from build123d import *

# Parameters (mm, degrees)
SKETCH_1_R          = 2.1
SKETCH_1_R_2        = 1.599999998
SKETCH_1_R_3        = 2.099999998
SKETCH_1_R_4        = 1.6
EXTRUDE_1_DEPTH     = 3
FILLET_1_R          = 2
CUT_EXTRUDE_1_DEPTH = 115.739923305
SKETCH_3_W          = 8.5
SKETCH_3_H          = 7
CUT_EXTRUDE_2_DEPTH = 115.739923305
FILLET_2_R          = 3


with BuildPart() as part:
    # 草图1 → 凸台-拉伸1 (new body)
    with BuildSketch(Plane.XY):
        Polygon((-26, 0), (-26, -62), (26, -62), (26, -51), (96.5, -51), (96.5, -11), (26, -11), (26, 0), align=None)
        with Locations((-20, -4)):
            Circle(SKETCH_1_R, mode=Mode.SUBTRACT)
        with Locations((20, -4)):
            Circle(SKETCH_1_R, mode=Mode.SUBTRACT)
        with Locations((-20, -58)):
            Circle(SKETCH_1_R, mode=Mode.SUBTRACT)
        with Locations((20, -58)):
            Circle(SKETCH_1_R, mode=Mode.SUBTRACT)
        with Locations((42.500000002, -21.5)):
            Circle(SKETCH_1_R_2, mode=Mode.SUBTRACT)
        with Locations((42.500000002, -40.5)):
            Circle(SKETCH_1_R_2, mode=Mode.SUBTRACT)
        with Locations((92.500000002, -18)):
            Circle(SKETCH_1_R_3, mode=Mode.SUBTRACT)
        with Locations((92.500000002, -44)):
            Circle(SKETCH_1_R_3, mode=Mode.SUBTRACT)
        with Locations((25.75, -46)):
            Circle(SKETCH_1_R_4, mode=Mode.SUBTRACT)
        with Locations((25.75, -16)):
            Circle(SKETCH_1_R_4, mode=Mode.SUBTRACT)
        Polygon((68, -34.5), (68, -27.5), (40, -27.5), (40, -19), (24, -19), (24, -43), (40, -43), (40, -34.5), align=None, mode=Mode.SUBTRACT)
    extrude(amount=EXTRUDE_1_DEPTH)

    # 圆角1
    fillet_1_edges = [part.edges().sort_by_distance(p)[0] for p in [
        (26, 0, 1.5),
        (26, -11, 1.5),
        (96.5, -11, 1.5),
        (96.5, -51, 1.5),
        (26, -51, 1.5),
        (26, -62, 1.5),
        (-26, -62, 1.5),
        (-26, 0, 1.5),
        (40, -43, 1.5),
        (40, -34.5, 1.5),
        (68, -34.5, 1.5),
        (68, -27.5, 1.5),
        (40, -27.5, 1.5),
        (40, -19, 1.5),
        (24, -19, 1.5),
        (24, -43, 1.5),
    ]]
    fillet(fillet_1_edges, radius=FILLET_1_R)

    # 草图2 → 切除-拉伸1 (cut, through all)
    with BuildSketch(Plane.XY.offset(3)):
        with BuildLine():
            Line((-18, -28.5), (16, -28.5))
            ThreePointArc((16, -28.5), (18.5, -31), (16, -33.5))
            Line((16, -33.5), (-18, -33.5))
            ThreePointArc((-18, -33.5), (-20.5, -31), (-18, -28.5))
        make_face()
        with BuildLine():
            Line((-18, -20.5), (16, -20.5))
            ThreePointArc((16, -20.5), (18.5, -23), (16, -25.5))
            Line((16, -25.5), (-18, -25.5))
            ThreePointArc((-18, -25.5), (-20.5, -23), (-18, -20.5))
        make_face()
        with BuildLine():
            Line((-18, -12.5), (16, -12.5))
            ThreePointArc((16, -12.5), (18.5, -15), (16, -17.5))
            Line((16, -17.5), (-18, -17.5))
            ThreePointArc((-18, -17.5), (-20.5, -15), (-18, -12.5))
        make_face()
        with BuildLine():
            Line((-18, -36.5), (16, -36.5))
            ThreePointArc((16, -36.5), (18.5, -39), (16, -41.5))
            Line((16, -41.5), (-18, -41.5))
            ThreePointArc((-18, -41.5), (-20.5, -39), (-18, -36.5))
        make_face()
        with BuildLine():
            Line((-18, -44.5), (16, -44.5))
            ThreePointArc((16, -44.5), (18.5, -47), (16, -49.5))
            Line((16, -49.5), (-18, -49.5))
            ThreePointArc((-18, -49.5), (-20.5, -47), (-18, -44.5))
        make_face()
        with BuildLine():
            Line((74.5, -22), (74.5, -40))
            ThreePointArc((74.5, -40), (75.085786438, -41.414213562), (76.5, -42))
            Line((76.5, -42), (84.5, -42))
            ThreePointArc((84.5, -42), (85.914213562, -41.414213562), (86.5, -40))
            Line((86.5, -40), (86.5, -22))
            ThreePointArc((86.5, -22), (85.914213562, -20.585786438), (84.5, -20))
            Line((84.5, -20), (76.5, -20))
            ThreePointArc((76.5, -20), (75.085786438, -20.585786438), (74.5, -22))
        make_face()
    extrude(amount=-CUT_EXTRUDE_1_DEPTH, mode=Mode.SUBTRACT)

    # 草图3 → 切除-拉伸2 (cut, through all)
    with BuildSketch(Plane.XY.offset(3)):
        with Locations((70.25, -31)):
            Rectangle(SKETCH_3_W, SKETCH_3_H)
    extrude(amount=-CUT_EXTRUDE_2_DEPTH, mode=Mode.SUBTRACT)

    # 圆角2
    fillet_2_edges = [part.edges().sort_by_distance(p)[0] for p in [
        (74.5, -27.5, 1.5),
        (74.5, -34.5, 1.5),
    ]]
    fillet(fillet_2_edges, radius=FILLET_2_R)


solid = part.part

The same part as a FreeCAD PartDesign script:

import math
import FreeCAD as App
import Part
import Sketcher
from FreeCAD import Vector
Q = App.Units.Quantity


def edges_at(feature, points):
    """Names of the edges that pass closest to the given points."""
    edges = feature.Shape.Edges
    near = lambda p: min(range(len(edges)), key=lambda i: edges[i].distToShape(Part.Vertex(*p))[0])
    return sorted({f"Edge{near(p) + 1}" for p in points})

doc = App.newDocument("Part")
body = doc.addObject("PartDesign::Body", "Body")

# Sketch on XY plane
sketch1 = body.newObject("Sketcher::SketchObject", "Sketch")
sketch1.AttachmentSupport = (doc.getObject("XY_Plane"), [""])
sketch1.MapMode = "FlatFace"
sketch1.addGeometry([
    Part.LineSegment(Vector(-26, 0, 0), Vector(-26, -62, 0)),  # 0
    Part.LineSegment(Vector(-26, -62, 0), Vector(26, -62, 0)),  # 1
    Part.LineSegment(Vector(26, -62, 0), Vector(26, -51, 0)),  # 2
    Part.LineSegment(Vector(26, -51, 0), Vector(96.5, -51, 0)),  # 3
    Part.LineSegment(Vector(96.5, -51, 0), Vector(96.5, -11, 0)),  # 4
    Part.LineSegment(Vector(96.5, -11, 0), Vector(26, -11, 0)),  # 5
    Part.LineSegment(Vector(26, -11, 0), Vector(26, 0, 0)),  # 6
    Part.LineSegment(Vector(26, 0, 0), Vector(-26, 0, 0)),  # 7
    Part.Circle(Vector(-20, -58, 0), Vector(0, 0, 1), 2.1),  # 8
    Part.Circle(Vector(20, -58, 0), Vector(0, 0, 1), 2.1),  # 9
    Part.Circle(Vector(25.8, -46, 0), Vector(0, 0, 1), 1.6),  # 10
    Part.Circle(Vector(42.5, -40.5, 0), Vector(0, 0, 1), 1.6),  # 11
    Part.LineSegment(Vector(68, -27.5, 0), Vector(68, -34.5, 0)),  # 12
    Part.LineSegment(Vector(68, -34.5, 0), Vector(40, -34.5, 0)),  # 13
    Part.LineSegment(Vector(40, -34.5, 0), Vector(40, -43, 0)),  # 14
    Part.LineSegment(Vector(40, -43, 0), Vector(24, -43, 0)),  # 15
    Part.LineSegment(Vector(24, -43, 0), Vector(24, -19, 0)),  # 16
    Part.LineSegment(Vector(24, -19, 0), Vector(40, -19, 0)),  # 17
    Part.LineSegment(Vector(40, -19, 0), Vector(40, -27.5, 0)),  # 18
    Part.LineSegment(Vector(40, -27.5, 0), Vector(68, -27.5, 0)),  # 19
    Part.Circle(Vector(92.5, -44, 0), Vector(0, 0, 1), 2.1),  # 20
    Part.Circle(Vector(-20, -4, 0), Vector(0, 0, 1), 2.1),  # 21
    Part.Circle(Vector(25.8, -16, 0), Vector(0, 0, 1), 1.6),  # 22
    Part.Circle(Vector(20, -4, 0), Vector(0, 0, 1), 2.1),  # 23
    Part.Circle(Vector(42.5, -21.5, 0), Vector(0, 0, 1), 1.6),  # 24
    Part.Circle(Vector(92.5, -18, 0), Vector(0, 0, 1), 2.1),  # 25
], False)
sketch1.addConstraint([
    Sketcher.Constraint("Coincident", 0, 2, 1, 1),
    Sketcher.Constraint("Coincident", 1, 2, 2, 1),
    Sketcher.Constraint("Coincident", 2, 2, 3, 1),
    Sketcher.Constraint("Coincident", 3, 2, 4, 1),
    Sketcher.Constraint("Coincident", 4, 2, 5, 1),
    Sketcher.Constraint("Coincident", 5, 2, 6, 1),
    Sketcher.Constraint("Coincident", 6, 2, 7, 1),
    Sketcher.Constraint("Coincident", 7, 2, 0, 1),
    Sketcher.Constraint("Coincident", 12, 2, 13, 1),
    Sketcher.Constraint("Coincident", 13, 2, 14, 1),
    Sketcher.Constraint("Coincident", 14, 2, 15, 1),
    Sketcher.Constraint("Coincident", 15, 2, 16, 1),
    Sketcher.Constraint("Coincident", 16, 2, 17, 1),
    Sketcher.Constraint("Coincident", 17, 2, 18, 1),
    Sketcher.Constraint("Coincident", 18, 2, 19, 1),
    Sketcher.Constraint("Coincident", 19, 2, 12, 1),
    Sketcher.Constraint("Vertical", 0),
    Sketcher.Constraint("Horizontal", 1),
    Sketcher.Constraint("Vertical", 2),
    Sketcher.Constraint("Horizontal", 3),
    Sketcher.Constraint("Vertical", 4),
    Sketcher.Constraint("Horizontal", 5),
    Sketcher.Constraint("Vertical", 6),
    Sketcher.Constraint("Horizontal", 7),
    Sketcher.Constraint("Vertical", 12),
    Sketcher.Constraint("Horizontal", 13),
    Sketcher.Constraint("Vertical", 14),
    Sketcher.Constraint("Horizontal", 15),
    Sketcher.Constraint("Vertical", 16),
    Sketcher.Constraint("Horizontal", 17),
    Sketcher.Constraint("Vertical", 18),
    Sketcher.Constraint("Horizontal", 19),
    Sketcher.Constraint("Equal", 8, 9),
    Sketcher.Constraint("Equal", 10, 11),
    Sketcher.Constraint("Equal", 9, 20),
    Sketcher.Constraint("Equal", 20, 21),
    Sketcher.Constraint("Equal", 11, 22),
    Sketcher.Constraint("Equal", 21, 23),
    Sketcher.Constraint("Equal", 22, 24),
    Sketcher.Constraint("Equal", 23, 25),
    Sketcher.Constraint("Symmetric", 6, 2, 7, 2, -1, 1),
    Sketcher.Constraint("Symmetric", 8, 3, 9, 3, -2),
    Sketcher.Constraint("Symmetric", 21, 3, 23, 3, -2),
    Sketcher.Constraint("Vertical", 8, 3, 21, 3),
    Sketcher.Constraint("Vertical", 10, 3, 22, 3),
    Sketcher.Constraint("Vertical", 11, 3, 24, 3),
    Sketcher.Constraint("Vertical", 20, 3, 25, 3),
    Sketcher.Constraint("Vertical", 2, 2, 5, 2),
    Sketcher.Constraint("Vertical", 14, 2, 17, 2),
    Sketcher.Constraint("Equal", 2, 6),
    Sketcher.Constraint("Equal", 14, 18),
    Sketcher.Constraint("Diameter", 8, Q("4.2 mm")),
    Sketcher.Constraint("Diameter", 10, Q("3.2 mm")),
    Sketcher.Constraint("DistanceX", 1, 1, 1, 2, Q("52 mm")),
    Sketcher.Constraint("DistanceX", 13, 2, 13, 1, Q("28 mm")),
    Sketcher.Constraint("DistanceX", 15, 2, 15, 1, Q("16 mm")),
    Sketcher.Constraint("DistanceY", 0, 2, 0, 1, Q("62 mm")),
    Sketcher.Constraint("DistanceY", 2, 1, 2, 2, Q("11 mm")),
    Sketcher.Constraint("DistanceY", 12, 2, 12, 1, Q("7 mm")),
    Sketcher.Constraint("DistanceY", 16, 1, 16, 2, Q("24 mm")),
    Sketcher.Constraint("DistanceX", 3, 1, 3, 2, Q("70.5 mm")),
    Sketcher.Constraint("DistanceX", 8, 3, -1, 1, Q("20 mm")),
    Sketcher.Constraint("DistanceY", 8, 3, -1, 1, Q("58 mm")),
    Sketcher.Constraint("DistanceY", 10, 3, -1, 1, Q("46 mm")),
    Sketcher.Constraint("DistanceY", 20, 3, -1, 1, Q("44 mm")),
    Sketcher.Constraint("DistanceY", 21, 3, -1, 1, Q("4 mm")),
    Sketcher.Constraint("DistanceY", 22, 3, -1, 1, Q("16 mm")),
    Sketcher.Constraint("DistanceY", 25, 3, -1, 1, Q("18 mm")),
    Sketcher.Constraint("DistanceX", -1, 1, 12, 2, Q("68 mm")),
    Sketcher.Constraint("DistanceY", 14, 2, -1, 1, Q("43 mm")),
    Sketcher.Constraint("DistanceX", 11, 3, 20, 3, Q("50 mm")),
    Sketcher.Constraint("DistanceY", 11, 3, 24, 3, Q("19 mm")),
    Sketcher.Constraint("DistanceX", 20, 3, 3, 2, Q("4 mm")),
    Sketcher.Constraint("DistanceY", 11, 3, 12, 2, Q("6 mm")),
    Sketcher.Constraint("DistanceX", -1, 1, 10, 3, Q("25.75 mm")),
])
pad1 = body.newObject("PartDesign::Pad", "Pad")
pad1.Profile = sketch1
pad1.Length = 3
doc.recompute()

fillet = body.newObject("PartDesign::Fillet", "Fillet")
fillet.Base = (pad1, edges_at(pad1, [
    (26, 0, 1.5),
    (26, -11, 1.5),
    (96.5, -11, 1.5),
    (96.5, -51, 1.5),
    (26, -51, 1.5),
    (26, -62, 1.5),
    (-26, -62, 1.5),
    (-26, 0, 1.5),
    (40, -43, 1.5),
    (40, -34.5, 1.5),
    (68, -34.5, 1.5),
    (68, -27.5, 1.5),
    (40, -27.5, 1.5),
    (40, -19, 1.5),
    (24, -19, 1.5),
    (24, -43, 1.5),
]))
fillet.Radius = 2

# Sketch on XY plane
sketch2 = body.newObject("Sketcher::SketchObject", "Sketch001")
sketch2.AttachmentSupport = (doc.getObject("XY_Plane"), [""])
sketch2.MapMode = "FlatFace"
sketch2.AttachmentOffset = App.Placement(Vector(0, 0, 3), App.Rotation())
sketch2.addGeometry([
    Part.LineSegment(Vector(16, -28.5, 0), Vector(-18, -28.5, 0)),  # 0
    Part.ArcOfCircle(Part.Circle(Vector(-18, -31, 0), Vector(0, 0, 1), 2.5), math.radians(90), math.radians(270)),  # 1
    Part.LineSegment(Vector(-18, -33.5, 0), Vector(16, -33.5, 0)),  # 2
    Part.ArcOfCircle(Part.Circle(Vector(16, -31, 0), Vector(0, 0, 1), 2.5), math.radians(-90), math.radians(90)),  # 3
    Part.LineSegment(Vector(16, -20.5, 0), Vector(-18, -20.5, 0)),  # 4
    Part.ArcOfCircle(Part.Circle(Vector(-18, -23, 0), Vector(0, 0, 1), 2.5), math.radians(90), math.radians(270)),  # 5
    Part.LineSegment(Vector(-18, -25.5, 0), Vector(16, -25.5, 0)),  # 6
    Part.ArcOfCircle(Part.Circle(Vector(16, -23, 0), Vector(0, 0, 1), 2.5), math.radians(-90), math.radians(90)),  # 7
    Part.LineSegment(Vector(16, -12.5, 0), Vector(-18, -12.5, 0)),  # 8
    Part.ArcOfCircle(Part.Circle(Vector(-18, -15, 0), Vector(0, 0, 1), 2.5), math.radians(90), math.radians(270)),  # 9
    Part.LineSegment(Vector(-18, -17.5, 0), Vector(16, -17.5, 0)),  # 10
    Part.ArcOfCircle(Part.Circle(Vector(16, -15, 0), Vector(0, 0, 1), 2.5), math.radians(-90), math.radians(90)),  # 11
    Part.LineSegment(Vector(16, -36.5, 0), Vector(-18, -36.5, 0)),  # 12
    Part.ArcOfCircle(Part.Circle(Vector(-18, -39, 0), Vector(0, 0, 1), 2.5), math.radians(90), math.radians(270)),  # 13
    Part.LineSegment(Vector(-18, -41.5, 0), Vector(16, -41.5, 0)),  # 14
    Part.ArcOfCircle(Part.Circle(Vector(16, -39, 0), Vector(0, 0, 1), 2.5), math.radians(-90), math.radians(90)),  # 15
    Part.LineSegment(Vector(16, -44.5, 0), Vector(-18, -44.5, 0)),  # 16
    Part.ArcOfCircle(Part.Circle(Vector(-18, -47, 0), Vector(0, 0, 1), 2.5), math.radians(90), math.radians(270)),  # 17
    Part.LineSegment(Vector(-18, -49.5, 0), Vector(16, -49.5, 0)),  # 18
    Part.ArcOfCircle(Part.Circle(Vector(16, -47, 0), Vector(0, 0, 1), 2.5), math.radians(-90), math.radians(90)),  # 19
    Part.LineSegment(Vector(74.5, -22, 0), Vector(74.5, -40, 0)),  # 20
    Part.ArcOfCircle(Part.Circle(Vector(76.5, -40, 0), Vector(0, 0, 1), 2), math.radians(-180), math.radians(-90)),  # 21
    Part.LineSegment(Vector(76.5, -42, 0), Vector(84.5, -42, 0)),  # 22
    Part.ArcOfCircle(Part.Circle(Vector(84.5, -40, 0), Vector(0, 0, 1), 2), math.radians(-90), math.radians(0)),  # 23
    Part.LineSegment(Vector(86.5, -40, 0), Vector(86.5, -22, 0)),  # 24
    Part.ArcOfCircle(Part.Circle(Vector(84.5, -22, 0), Vector(0, 0, 1), 2), math.radians(0), math.radians(90)),  # 25
    Part.LineSegment(Vector(84.5, -20, 0), Vector(76.5, -20, 0)),  # 26
    Part.ArcOfCircle(Part.Circle(Vector(76.5, -22, 0), Vector(0, 0, 1), 2), math.radians(90), math.radians(180)),  # 27
], False)
sketch2.addConstraint([
    Sketcher.Constraint("Tangent", 0, 2, 1, 1),
    Sketcher.Constraint("Tangent", 1, 2, 2, 1),
    Sketcher.Constraint("Tangent", 2, 2, 3, 1),
    Sketcher.Constraint("Tangent", 3, 2, 0, 1),
    Sketcher.Constraint("Tangent", 4, 2, 5, 1),
    Sketcher.Constraint("Tangent", 5, 2, 6, 1),
    Sketcher.Constraint("Tangent", 6, 2, 7, 1),
    Sketcher.Constraint("Tangent", 7, 2, 4, 1),
    Sketcher.Constraint("Tangent", 8, 2, 9, 1),
    Sketcher.Constraint("Tangent", 9, 2, 10, 1),
    Sketcher.Constraint("Tangent", 10, 2, 11, 1),
    Sketcher.Constraint("Tangent", 11, 2, 8, 1),
    Sketcher.Constraint("Tangent", 12, 2, 13, 1),
    Sketcher.Constraint("Tangent", 13, 2, 14, 1),
    Sketcher.Constraint("Tangent", 14, 2, 15, 1),
    Sketcher.Constraint("Tangent", 15, 2, 12, 1),
    Sketcher.Constraint("Tangent", 16, 2, 17, 1),
    Sketcher.Constraint("Tangent", 17, 2, 18, 1),
    Sketcher.Constraint("Tangent", 18, 2, 19, 1),
    Sketcher.Constraint("Tangent", 19, 2, 16, 1),
    Sketcher.Constraint("Tangent", 20, 2, 21, 1),
    Sketcher.Constraint("Tangent", 21, 2, 22, 1),
    Sketcher.Constraint("Tangent", 22, 2, 23, 1),
    Sketcher.Constraint("Tangent", 23, 2, 24, 1),
    Sketcher.Constraint("Tangent", 24, 2, 25, 1),
    Sketcher.Constraint("Tangent", 25, 2, 26, 1),
    Sketcher.Constraint("Tangent", 26, 2, 27, 1),
    Sketcher.Constraint("Tangent", 27, 2, 20, 1),
    Sketcher.Constraint("Horizontal", 0),
    Sketcher.Constraint("Horizontal", 2),
    Sketcher.Constraint("Horizontal", 4),
    Sketcher.Constraint("Horizontal", 6),
    Sketcher.Constraint("Horizontal", 8),
    Sketcher.Constraint("Horizontal", 10),
    Sketcher.Constraint("Horizontal", 12),
    Sketcher.Constraint("Horizontal", 14),
    Sketcher.Constraint("Horizontal", 16),
    Sketcher.Constraint("Horizontal", 18),
    Sketcher.Constraint("Vertical", 20),
    Sketcher.Constraint("Horizontal", 22),
    Sketcher.Constraint("Vertical", 24),
    Sketcher.Constraint("Horizontal", 26),
    Sketcher.Constraint("Equal", 3, 5),
    Sketcher.Constraint("Equal", 7, 9),
    Sketcher.Constraint("Equal", 11, 13),
    Sketcher.Constraint("Equal", 15, 17),
    Sketcher.Constraint("Equal", 21, 23),
    Sketcher.Constraint("Equal", 23, 25),
    Sketcher.Constraint("Equal", 25, 27),
    Sketcher.Constraint("Vertical", 1, 3, 5, 3),
    Sketcher.Constraint("Vertical", 3, 3, 7, 3),
    Sketcher.Constraint("Vertical", 5, 3, 9, 3),
    Sketcher.Constraint("Vertical", 7, 3, 11, 3),
    Sketcher.Constraint("Vertical", 9, 3, 13, 3),
    Sketcher.Constraint("Vertical", 11, 3, 15, 3),
    Sketcher.Constraint("Vertical", 13, 3, 17, 3),
    Sketcher.Constraint("Vertical", 15, 3, 19, 3),
    Sketcher.Constraint("Radius", 21, Q("2 mm")),
    Sketcher.Constraint("Radius", 1, Q("2.5 mm")),
    Sketcher.Constraint("DistanceX", 0, 2, 0, 1, Q("34 mm")),
    Sketcher.Constraint("DistanceX", 22, 1, 22, 2, Q("8 mm")),
    Sketcher.Constraint("DistanceY", 20, 2, 20, 1, Q("18 mm")),
    Sketcher.Constraint("DistanceX", 1, 3, -1, 1, Q("18 mm")),
    Sketcher.Constraint("DistanceY", 1, 3, -1, 1, Q("31 mm")),
    Sketcher.Constraint("DistanceY", 5, 3, -1, 1, Q("23 mm")),
    Sketcher.Constraint("DistanceY", 9, 3, -1, 1, Q("15 mm")),
    Sketcher.Constraint("DistanceY", 13, 3, -1, 1, Q("39 mm")),
    Sketcher.Constraint("DistanceY", 17, 3, -1, 1, Q("47 mm")),
    Sketcher.Constraint("DistanceY", 21, 3, -1, 1, Q("40 mm")),
    Sketcher.Constraint("DistanceX", -1, 1, 21, 3, Q("76.5 mm")),
])
pocket1 = body.newObject("PartDesign::Pocket", "Pocket")
pocket1.Profile = sketch2
pocket1.Type = "ThroughAll"

# Sketch on XY plane
sketch3 = body.newObject("Sketcher::SketchObject", "Sketch002")
sketch3.AttachmentSupport = (doc.getObject("XY_Plane"), [""])
sketch3.MapMode = "FlatFace"
sketch3.AttachmentOffset = App.Placement(Vector(0, 0, 3), App.Rotation())
sketch3.addGeometry([
    Part.LineSegment(Vector(66, -28, 0), Vector(66, -34, 0)),
    Part.LineSegment(Vector(66, -34, 0), Vector(74, -34, 0)),
    Part.LineSegment(Vector(74, -34, 0), Vector(74, -28, 0)),
    Part.LineSegment(Vector(74, -28, 0), Vector(66, -28, 0)),
], False)
sketch3.addConstraint([
    Sketcher.Constraint("Coincident", 0, 2, 1, 1),
    Sketcher.Constraint("Coincident", 1, 2, 2, 1),
    Sketcher.Constraint("Coincident", 2, 2, 3, 1),
    Sketcher.Constraint("Coincident", 3, 2, 0, 1),
    Sketcher.Constraint("Vertical", 0),
    Sketcher.Constraint("Horizontal", 1),
    Sketcher.Constraint("Vertical", 2),
    Sketcher.Constraint("Horizontal", 3),
    Sketcher.Constraint("DistanceY", 0, 2, 0, 1, Q("7 mm")),
    Sketcher.Constraint("DistanceX", 1, 1, 1, 2, Q("8.5 mm")),
    Sketcher.Constraint("DistanceX", -1, 1, 0, 2, Q("66 mm")),
    Sketcher.Constraint("DistanceY", 0, 2, -1, 1, Q("34.5 mm")),
])
pocket2 = body.newObject("PartDesign::Pocket", "Pocket001")
pocket2.Profile = sketch3
pocket2.Type = "ThroughAll"
doc.recompute()

fillet2 = body.newObject("PartDesign::Fillet", "Fillet001")
fillet2.Base = (pocket2, edges_at(pocket2, [(74.5, -27.5, 1.5), (74.5, -34.5, 1.5)]))
fillet2.Radius = 3

doc.recompute()
